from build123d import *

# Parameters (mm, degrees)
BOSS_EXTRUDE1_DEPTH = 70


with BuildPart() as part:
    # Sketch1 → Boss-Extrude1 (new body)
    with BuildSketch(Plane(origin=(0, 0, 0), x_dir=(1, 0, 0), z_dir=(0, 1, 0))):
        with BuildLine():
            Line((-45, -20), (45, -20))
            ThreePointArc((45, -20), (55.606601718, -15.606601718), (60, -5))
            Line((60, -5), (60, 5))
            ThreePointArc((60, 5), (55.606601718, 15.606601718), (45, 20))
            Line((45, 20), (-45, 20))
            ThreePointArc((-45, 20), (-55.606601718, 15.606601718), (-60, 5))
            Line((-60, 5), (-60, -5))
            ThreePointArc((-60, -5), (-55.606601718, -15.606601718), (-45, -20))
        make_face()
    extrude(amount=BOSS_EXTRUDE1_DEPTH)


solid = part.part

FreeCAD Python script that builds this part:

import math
import FreeCAD as App
import Part
import Sketcher
from FreeCAD import Vector
Q = App.Units.Quantity

doc = App.newDocument("Part")
body = doc.addObject("PartDesign::Body", "Body")

# Sketch on XZ plane
sketch1 = body.newObject("Sketcher::SketchObject", "Sketch")
sketch1.AttachmentSupport = (doc.getObject("XZ_Plane"), [""])
sketch1.MapMode = "FlatFace"
sketch1.addGeometry([
    Part.LineSegment(Vector(-45, 20, 0), Vector(45, 20, 0)),  # 0
    Part.ArcOfCircle(Part.Circle(Vector(45, 5, 0), Vector(0, 0, 1), 15), math.radians(0), math.radians(90)),  # 1
    Part.LineSegment(Vector(60, 5, 0), Vector(60, -5, 0)),  # 2
    Part.ArcOfCircle(Part.Circle(Vector(45, -5, 0), Vector(0, 0, 1), 15), math.radians(-90), math.radians(0)),  # 3
    Part.LineSegment(Vector(45, -20, 0), Vector(-45, -20, 0)),  # 4
    Part.ArcOfCircle(Part.Circle(Vector(-45, -5, 0), Vector(0, 0, 1), 15), math.radians(180), math.radians(270)),  # 5
    Part.LineSegment(Vector(-60, -5, 0), Vector(-60, 5, 0)),  # 6
    Part.ArcOfCircle(Part.Circle(Vector(-45, 5, 0), Vector(0, 0, 1), 15), math.radians(90), math.radians(180)),  # 7
], False)
sketch1.addConstraint([
    Sketcher.Constraint("Tangent", 0, 2, 1, 2),
    Sketcher.Constraint("Tangent", 1, 1, 2, 1),
    Sketcher.Constraint("Tangent", 2, 2, 3, 2),
    Sketcher.Constraint("Tangent", 3, 1, 4, 1),
    Sketcher.Constraint("Tangent", 4, 2, 5, 2),
    Sketcher.Constraint("Tangent", 5, 1, 6, 1),
    Sketcher.Constraint("Tangent", 6, 2, 7, 2),
    Sketcher.Constraint("Tangent", 7, 1, 0, 1),
    Sketcher.Constraint("Horizontal", 0),
    Sketcher.Constraint("Vertical", 2),
    Sketcher.Constraint("Horizontal", 4),
    Sketcher.Constraint("Vertical", 6),
    Sketcher.Constraint("Equal", 1, 3),
    Sketcher.Constraint("Equal", 3, 5),
    Sketcher.Constraint("Equal", 5, 7),
    Sketcher.Constraint("Symmetric", 1, 3, 5, 3, -1, 1),
    Sketcher.Constraint("Radius", 1, Q("15 mm")),
    Sketcher.Constraint("DistanceX", 0, 1, 0, 2, Q("90 mm")),
    Sketcher.Constraint("DistanceY", 2, 2, 2, 1, Q("10 mm")),
])
pad1 = body.newObject("PartDesign::Pad", "Pad")
pad1.Profile = sketch1
pad1.Length = 70
pad1.Reversed = True

doc.recompute()
